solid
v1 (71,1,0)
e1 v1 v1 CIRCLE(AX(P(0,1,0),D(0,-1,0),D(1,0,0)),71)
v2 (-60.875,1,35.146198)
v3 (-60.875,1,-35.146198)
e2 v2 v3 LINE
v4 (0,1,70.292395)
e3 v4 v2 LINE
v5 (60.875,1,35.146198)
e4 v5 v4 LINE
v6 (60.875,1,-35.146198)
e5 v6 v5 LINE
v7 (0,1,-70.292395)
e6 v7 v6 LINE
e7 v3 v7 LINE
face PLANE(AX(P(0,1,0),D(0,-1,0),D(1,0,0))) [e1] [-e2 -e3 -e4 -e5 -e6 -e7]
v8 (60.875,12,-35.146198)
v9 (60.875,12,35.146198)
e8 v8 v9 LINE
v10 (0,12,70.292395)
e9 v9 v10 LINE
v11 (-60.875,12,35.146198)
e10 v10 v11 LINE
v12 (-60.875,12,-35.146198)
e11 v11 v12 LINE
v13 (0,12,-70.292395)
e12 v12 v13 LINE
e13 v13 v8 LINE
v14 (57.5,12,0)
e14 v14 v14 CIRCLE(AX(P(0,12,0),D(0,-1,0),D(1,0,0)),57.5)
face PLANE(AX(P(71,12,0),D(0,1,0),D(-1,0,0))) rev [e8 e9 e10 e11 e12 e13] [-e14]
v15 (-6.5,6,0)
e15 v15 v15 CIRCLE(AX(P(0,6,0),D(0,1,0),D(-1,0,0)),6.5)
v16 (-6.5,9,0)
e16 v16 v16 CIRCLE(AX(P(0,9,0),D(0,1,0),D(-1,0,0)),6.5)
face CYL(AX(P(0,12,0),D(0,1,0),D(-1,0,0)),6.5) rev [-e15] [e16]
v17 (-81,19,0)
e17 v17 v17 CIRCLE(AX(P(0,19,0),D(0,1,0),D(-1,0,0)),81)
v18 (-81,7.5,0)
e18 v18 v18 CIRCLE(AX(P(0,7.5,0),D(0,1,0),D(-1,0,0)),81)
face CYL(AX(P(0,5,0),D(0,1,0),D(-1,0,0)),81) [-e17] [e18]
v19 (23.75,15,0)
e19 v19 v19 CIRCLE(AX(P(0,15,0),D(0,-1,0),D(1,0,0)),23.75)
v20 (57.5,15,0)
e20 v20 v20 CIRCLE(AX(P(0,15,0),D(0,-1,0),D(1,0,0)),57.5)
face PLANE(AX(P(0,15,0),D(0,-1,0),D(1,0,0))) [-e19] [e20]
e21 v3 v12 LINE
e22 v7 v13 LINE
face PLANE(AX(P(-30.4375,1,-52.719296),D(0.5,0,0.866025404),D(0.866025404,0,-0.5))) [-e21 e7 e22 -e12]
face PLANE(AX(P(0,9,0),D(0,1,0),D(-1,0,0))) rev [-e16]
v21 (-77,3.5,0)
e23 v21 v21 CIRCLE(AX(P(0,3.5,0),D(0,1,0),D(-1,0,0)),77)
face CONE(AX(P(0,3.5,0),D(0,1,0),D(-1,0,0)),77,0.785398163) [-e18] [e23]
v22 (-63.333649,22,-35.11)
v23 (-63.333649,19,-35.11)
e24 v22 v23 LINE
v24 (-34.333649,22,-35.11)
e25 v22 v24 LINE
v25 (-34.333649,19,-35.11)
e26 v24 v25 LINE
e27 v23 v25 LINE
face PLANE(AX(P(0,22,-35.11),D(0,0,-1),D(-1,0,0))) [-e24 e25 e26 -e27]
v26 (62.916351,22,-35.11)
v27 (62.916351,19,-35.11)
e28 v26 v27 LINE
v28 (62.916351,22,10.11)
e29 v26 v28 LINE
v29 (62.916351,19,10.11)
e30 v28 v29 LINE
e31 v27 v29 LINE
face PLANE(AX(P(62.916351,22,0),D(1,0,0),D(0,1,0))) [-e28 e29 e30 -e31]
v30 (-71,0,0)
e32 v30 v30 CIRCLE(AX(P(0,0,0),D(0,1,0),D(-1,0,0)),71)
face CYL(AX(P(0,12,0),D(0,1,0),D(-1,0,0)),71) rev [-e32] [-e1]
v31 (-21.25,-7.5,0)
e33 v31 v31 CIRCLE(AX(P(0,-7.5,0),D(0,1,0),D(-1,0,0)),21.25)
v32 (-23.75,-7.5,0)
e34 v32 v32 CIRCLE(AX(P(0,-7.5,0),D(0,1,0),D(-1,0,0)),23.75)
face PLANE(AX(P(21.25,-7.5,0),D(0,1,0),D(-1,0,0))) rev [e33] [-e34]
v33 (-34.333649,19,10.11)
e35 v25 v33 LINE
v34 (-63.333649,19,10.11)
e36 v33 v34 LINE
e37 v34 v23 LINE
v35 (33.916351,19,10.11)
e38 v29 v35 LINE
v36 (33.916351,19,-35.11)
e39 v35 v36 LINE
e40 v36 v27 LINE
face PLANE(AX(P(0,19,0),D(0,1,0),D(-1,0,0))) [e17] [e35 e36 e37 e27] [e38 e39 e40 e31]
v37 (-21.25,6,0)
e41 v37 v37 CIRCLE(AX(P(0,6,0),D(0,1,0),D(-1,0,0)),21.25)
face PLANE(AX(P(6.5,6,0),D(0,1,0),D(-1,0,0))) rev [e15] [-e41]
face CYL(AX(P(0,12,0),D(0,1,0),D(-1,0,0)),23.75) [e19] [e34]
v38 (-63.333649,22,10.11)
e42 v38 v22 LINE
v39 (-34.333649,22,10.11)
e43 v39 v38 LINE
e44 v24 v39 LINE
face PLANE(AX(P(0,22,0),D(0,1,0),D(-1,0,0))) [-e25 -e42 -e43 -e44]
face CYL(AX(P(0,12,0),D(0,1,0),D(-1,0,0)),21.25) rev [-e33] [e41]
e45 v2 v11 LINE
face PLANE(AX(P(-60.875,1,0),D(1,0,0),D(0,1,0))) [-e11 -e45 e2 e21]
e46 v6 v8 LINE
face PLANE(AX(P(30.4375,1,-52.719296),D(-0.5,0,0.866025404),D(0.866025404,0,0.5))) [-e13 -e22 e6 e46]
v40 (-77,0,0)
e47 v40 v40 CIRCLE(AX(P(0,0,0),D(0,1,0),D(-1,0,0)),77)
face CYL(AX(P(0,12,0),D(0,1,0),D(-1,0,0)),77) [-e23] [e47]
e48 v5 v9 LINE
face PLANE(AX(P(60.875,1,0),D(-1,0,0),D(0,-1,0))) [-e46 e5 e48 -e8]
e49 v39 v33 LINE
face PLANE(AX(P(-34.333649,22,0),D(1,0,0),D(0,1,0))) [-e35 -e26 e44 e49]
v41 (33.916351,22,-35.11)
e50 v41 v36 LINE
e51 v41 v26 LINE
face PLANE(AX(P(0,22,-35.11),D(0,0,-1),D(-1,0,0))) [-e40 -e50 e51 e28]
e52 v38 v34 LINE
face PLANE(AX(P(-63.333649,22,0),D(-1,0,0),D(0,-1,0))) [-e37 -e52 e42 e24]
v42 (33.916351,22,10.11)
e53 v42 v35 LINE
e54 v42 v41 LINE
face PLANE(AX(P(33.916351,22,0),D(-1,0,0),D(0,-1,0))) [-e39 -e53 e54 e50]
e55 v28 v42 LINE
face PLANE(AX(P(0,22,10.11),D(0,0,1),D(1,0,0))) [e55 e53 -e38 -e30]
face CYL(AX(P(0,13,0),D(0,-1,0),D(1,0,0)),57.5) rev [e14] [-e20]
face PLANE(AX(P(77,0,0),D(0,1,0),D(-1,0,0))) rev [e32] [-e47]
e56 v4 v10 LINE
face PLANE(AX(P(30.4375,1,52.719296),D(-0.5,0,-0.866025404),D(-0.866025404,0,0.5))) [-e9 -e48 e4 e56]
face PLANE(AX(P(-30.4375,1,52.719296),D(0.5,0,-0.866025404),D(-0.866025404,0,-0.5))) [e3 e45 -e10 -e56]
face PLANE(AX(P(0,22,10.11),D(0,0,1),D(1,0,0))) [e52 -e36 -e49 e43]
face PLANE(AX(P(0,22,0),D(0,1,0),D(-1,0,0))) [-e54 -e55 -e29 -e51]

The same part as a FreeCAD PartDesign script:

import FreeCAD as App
import Part
import Sketcher
Q = App.Units.Quantity

doc = App.newDocument("Part")
body = doc.addObject("PartDesign::Body", "Body")

# Sketch on XY plane
sketch1 = body.newObject("Sketcher::SketchObject", "Sketch")
sketch1.AttachmentSupport = (doc.getObject("XY_Plane"), [""])
sketch1.MapMode = "FlatFace"
sketch1.addGeometry([
    Part.LineSegment(App.Vector(0, 15, 0), App.Vector(0, 9, 0)),  # 0
    Part.LineSegment(App.Vector(0, 9, 0), App.Vector(6.5, 9, 0)),  # 1
    Part.LineSegment(App.Vector(6.5, 9, 0), App.Vector(6.5, 6, 0)),  # 2
    Part.LineSegment(App.Vector(6.5, 6, 0), App.Vector(21.2, 6, 0)),  # 3
    Part.LineSegment(App.Vector(21.2, 6, 0), App.Vector(21.2, -7.5, 0)),  # 4
    Part.LineSegment(App.Vector(21.2, -7.5, 0), App.Vector(23.8, -7.5, 0)),  # 5
    Part.LineSegment(App.Vector(23.8, -7.5, 0), App.Vector(23.8, 12, 0)),  # 6
    Part.LineSegment(App.Vector(23.8, 12, 0), App.Vector(71, 12, 0)),  # 7
    Part.LineSegment(App.Vector(71, 12, 0), App.Vector(71, 0, 0)),  # 8
    Part.LineSegment(App.Vector(71, 0, 0), App.Vector(77, 0, 0)),  # 9
    Part.LineSegment(App.Vector(77, 0, 0), App.Vector(77, 3.5, 0)),  # 10
    Part.LineSegment(App.Vector(77, 3.5, 0), App.Vector(84, 10.5, 0)),  # 11
    Part.LineSegment(App.Vector(84, 10.5, 0), App.Vector(85, 10.5, 0)),  # 12
    Part.LineSegment(App.Vector(85, 10.5, 0), App.Vector(85, 15, 0)),  # 13
    Part.LineSegment(App.Vector(85, 15, 0), App.Vector(0, 15, 0)),  # 14
], False)
sketch1.addConstraint([
    Sketcher.Constraint("Coincident", 0, 2, 1, 1),
    Sketcher.Constraint("Coincident", 1, 2, 2, 1),
    Sketcher.Constraint("Coincident", 2, 2, 3, 1),
    Sketcher.Constraint("Coincident", 3, 2, 4, 1),
    Sketcher.Constraint("Coincident", 4, 2, 5, 1),
    Sketcher.Constraint("Coincident", 5, 2, 6, 1),
    Sketcher.Constraint("Coincident", 6, 2, 7, 1),
    Sketcher.Constraint("Coincident", 7, 2, 8, 1),
    Sketcher.Constraint("Coincident", 8, 2, 9, 1),
    Sketcher.Constraint("Coincident", 9, 2, 10, 1),
    Sketcher.Constraint("Coincident", 10, 2, 11, 1),
    Sketcher.Constraint("Coincident", 11, 2, 12, 1),
    Sketcher.Constraint("Coincident", 12, 2, 13, 1),
    Sketcher.Constraint("Coincident", 13, 2, 14, 1),
    Sketcher.Constraint("Coincident", 14, 2, 0, 1),
    Sketcher.Constraint("Vertical", 0),
    Sketcher.Constraint("Horizontal", 1),
    Sketcher.Constraint("Vertical", 2),
    Sketcher.Constraint("Horizontal", 3),
    Sketcher.Constraint("Vertical", 4),
    Sketcher.Constraint("Horizontal", 5),
    Sketcher.Constraint("Vertical", 6),
    Sketcher.Constraint("Horizontal", 7),
    Sketcher.Constraint("Vertical", 8),
    Sketcher.Constraint("Horizontal", 9),
    Sketcher.Constraint("Vertical", 10),
    Sketcher.Constraint("Horizontal", 12),
    Sketcher.Constraint("Vertical", 13),
    Sketcher.Constraint("Horizontal", 14),
    Sketcher.Constraint("PointOnObject", 0, 2, -2),
    Sketcher.Constraint("PointOnObject", 8, 2, -1),
    Sketcher.Constraint("Equal", 9, 0),
    Sketcher.Constraint("DistanceX", 9, 1, 9, 2, 6.0),
    Sketcher.Constraint("DistanceX", 12, 1, 12, 2, 1.0),
    Sketcher.Constraint("DistanceX", 14, 2, 14, 1, 85.0),
    Sketcher.Constraint("DistanceY", 2, 2, 2, 1, 3.0),
    Sketcher.Constraint("DistanceY", 8, 2, 8, 1, 12.0),
    Sketcher.Constraint("Angle", 11, Q("45 deg")),
    Sketcher.Constraint("DistanceX", 1, 1, 1, 2, 6.5),
    Sketcher.Constraint("DistanceX", 5, 1, 5, 2, 2.5),
    Sketcher.Constraint("DistanceY", 4, 2, 4, 1, 13.5),
    Sketcher.Constraint("DistanceY", 6, 1, 6, 2, 19.5),
    Sketcher.Constraint("DistanceY", 10, 1, 10, 2, 3.5),
    Sketcher.Constraint("DistanceY", 13, 1, 13, 2, 4.5),
    Sketcher.Constraint("DistanceX", 3, 1, 3, 2, 14.75),
])
revolution = body.newObject("PartDesign::Revolution", "Revolution")
revolution.Profile = sketch1
revolution.ReferenceAxis = (sketch1, ["V_Axis"])
revolution.Angle = 360

# Sketch on XZ plane
sketch2 = body.newObject("Sketcher::SketchObject", "Sketch001")
sketch2.AttachmentSupport = (doc.getObject("XZ_Plane"), [""])
sketch2.MapMode = "FlatFace"
sketch2.AttachmentOffset = App.Placement(App.Vector(0, 0, -12), App.Rotation())
sketch2.addGeometry([
    Part.Circle(App.Vector(0, 0, 0), App.Vector(0, 0, 1), 71),  # 0
    Part.LineSegment(App.Vector(-61, 35, 0), App.Vector(0, 70, 0)),  # 1
    Part.LineSegment(App.Vector(0, 70, 0), App.Vector(61, 35, 0)),  # 2
    Part.LineSegment(App.Vector(61, 35, 0), App.Vector(61, -35, 0)),  # 3
    Part.LineSegment(App.Vector(61, -35, 0), App.Vector(0, -70, 0)),  # 4
    Part.LineSegment(App.Vector(0, -70, 0), App.Vector(-61, -35, 0)),  # 5
    Part.LineSegment(App.Vector(-61, -35, 0), App.Vector(-61, 35, 0)),  # 6
], False)
sketch2.addConstraint([
    Sketcher.Constraint("Coincident", 1, 2, 2, 1),
    Sketcher.Constraint("Coincident", 2, 2, 3, 1),
    Sketcher.Constraint("Coincident", 3, 2, 4, 1),
    Sketcher.Constraint("Coincident", 4, 2, 5, 1),
    Sketcher.Constraint("Coincident", 5, 2, 6, 1),
    Sketcher.Constraint("Coincident", 6, 2, 1, 1),
    Sketcher.Constraint("Vertical", 3),
    Sketcher.Constraint("Vertical", 6),
    Sketcher.Constraint("Coincident", 0, 3, -1, 1),
    Sketcher.Constraint("Symmetric", 1, 2, 4, 2, -1, 1),
    Sketcher.Constraint("Symmetric", 2, 2, 5, 2, -1, 1),
    Sketcher.Constraint("PointOnObject", 1, 2, -2),
    Sketcher.Constraint("Parallel", 1, 4),
    Sketcher.Constraint("Horizontal", 3, 2, 5, 2),
    Sketcher.Constraint("Diameter", 0, 142.0),
    Sketcher.Constraint("Angle", 1, Q("30 deg")),
    Sketcher.Constraint("DistanceX", 5, 2, 3, 2, 121.75),
    Sketcher.Constraint("DistanceY", 3, 2, 3, 1, 70.292395),
])
pad1 = body.newObject("PartDesign::Pad", "Pad")
pad1.Profile = sketch2
pad1.Length = 11

# Sketch on XZ plane
sketch3 = body.newObject("Sketcher::SketchObject", "Sketch002")
sketch3.AttachmentSupport = (doc.getObject("XZ_Plane"), [""])
sketch3.MapMode = "FlatFace"
sketch3.AttachmentOffset = App.Placement(App.Vector(0, 0, -12), App.Rotation())
sketch3.addGeometry([
    Part.Circle(App.Vector(0, 0, 0), App.Vector(0, 0, 1), 58),
    Part.Circle(App.Vector(0, 0, 0), App.Vector(0, 0, 1), 24),
], False)
sketch3.addConstraint([
    Sketcher.Constraint("Coincident", 0, 3, -1, 1),
    Sketcher.Constraint("Coincident", 1, 3, -1, 1),
    Sketcher.Constraint("Diameter", 0, 115.0),
    Sketcher.Constraint("Diameter", 1, 47.5),
])
pocket1 = body.newObject("PartDesign::Pocket", "Pocket")
pocket1.Profile = sketch3
pocket1.Length = 1

# Sketch on XZ plane
sketch4 = body.newObject("Sketcher::SketchObject", "Sketch003")
sketch4.AttachmentSupport = (doc.getObject("XZ_Plane"), [""])
sketch4.MapMode = "FlatFace"
sketch4.AttachmentOffset = App.Placement(App.Vector(0, 0, -5), App.Rotation())
sketch4.addGeometry([
    Part.Circle(App.Vector(0, 0, 0), App.Vector(0, 0, 1), 85),
    Part.Circle(App.Vector(0, 0, 0), App.Vector(0, 0, 1), 81),
], False)
sketch4.addConstraint([
    Sketcher.Constraint("Coincident", 0, 3, -1, 1),
    Sketcher.Constraint("Coincident", 1, 3, -1, 1),
    Sketcher.Constraint("Diameter", 0, 170.0),
    Sketcher.Constraint("Diameter", 1, 162.0),
])
pocket2 = body.newObject("PartDesign::Pocket", "Pocket001")
pocket2.Profile = sketch4
pocket2.Length = 10

# Sketch on XZ plane
sketch5 = body.newObject("Sketcher::SketchObject", "Sketch004")
sketch5.AttachmentSupport = (doc.getObject("XZ_Plane"), [""])
sketch5.MapMode = "FlatFace"
sketch5.AttachmentOffset = App.Placement(App.Vector(0, 0, -13), App.Rotation())
sketch5.addGeometry([
    Part.Circle(App.Vector(0, 0, 0), App.Vector(0, 0, 1), 58),
    Part.Circle(App.Vector(0, 0, 0), App.Vector(0, 0, 1), 24),
], False)
sketch5.addConstraint([
    Sketcher.Constraint("Coincident", 0, 3, -1, 1),
    Sketcher.Constraint("Coincident", 1, 3, -1, 1),
    Sketcher.Constraint("Diameter", 0, 115.0),
    Sketcher.Constraint("Diameter", 1, 47.5),
])
pad2 = body.newObject("PartDesign::Pad", "Pad001")
pad2.Profile = sketch5
pad2.Length = 1
pad2.Reversed = True

# Sketch on XZ plane
sketch6 = body.newObject("Sketcher::SketchObject", "Sketch005")
sketch6.AttachmentSupport = (doc.getObject("XZ_Plane"), [""])
sketch6.MapMode = "FlatFace"
sketch6.AttachmentOffset = App.Placement(App.Vector(0, 0, -15), App.Rotation())
sketch6.addGeometry(Part.Circle(App.Vector(0, 0, 0), App.Vector(0, 0, 1), 81), False)
sketch6.addConstraint([
    Sketcher.Constraint("Coincident", 0, 3, -1, 1),
    Sketcher.Constraint("Diameter", 0, 162.0),
])
pad3 = body.newObject("PartDesign::Pad", "Pad002")
pad3.Profile = sketch6
pad3.Length = 4
pad3.Reversed = True

# Sketch on XZ plane
sketch7 = body.newObject("Sketcher::SketchObject", "Sketch006")
sketch7.AttachmentSupport = (doc.getObject("XZ_Plane"), [""])
sketch7.MapMode = "FlatFace"
sketch7.AttachmentOffset = App.Placement(App.Vector(0, 0, -13), App.Rotation())
sketch7.addGeometry([
    Part.Circle(App.Vector(0, 0, 0), App.Vector(0, 0, 1), 58),
    Part.Circle(App.Vector(0, 0, 0), App.Vector(0, 0, 1), 24),
], False)
sketch7.addConstraint([
    Sketcher.Constraint("Coincident", 0, 3, -1, 1),
    Sketcher.Constraint("Coincident", 1, 3, -1, 1),
    Sketcher.Constraint("Diameter", 0, 115.0),
    Sketcher.Constraint("Diameter", 1, 47.5),
])
pocket3 = body.newObject("PartDesign::Pocket", "Pocket002")
pocket3.Profile = sketch7
pocket3.Length = 2

# Sketch on XZ plane
sketch8 = body.newObject("Sketcher::SketchObject", "Sketch007")
sketch8.AttachmentSupport = (doc.getObject("XZ_Plane"), [""])
sketch8.MapMode = "FlatFace"
sketch8.AttachmentOffset = App.Placement(App.Vector(0, 0, -19), App.Rotation())
sketch8.addGeometry([
    Part.LineSegment(App.Vector(-63, 10, 0), App.Vector(-34, 10, 0)),  # 0
    Part.LineSegment(App.Vector(-34, 10, 0), App.Vector(-34, -35, 0)),  # 1
    Part.LineSegment(App.Vector(-34, -35, 0), App.Vector(-63, -35, 0)),  # 2
    Part.LineSegment(App.Vector(-63, -35, 0), App.Vector(-63, 10, 0)),  # 3
    Part.LineSegment(App.Vector(34, 10, 0), App.Vector(63, 10, 0)),  # 4
    Part.LineSegment(App.Vector(63, 10, 0), App.Vector(63, -35, 0)),  # 5
    Part.LineSegment(App.Vector(63, -35, 0), App.Vector(34, -35, 0)),  # 6
    Part.LineSegment(App.Vector(34, -35, 0), App.Vector(34, 10, 0)),  # 7
], False)
sketch8.addConstraint([
    Sketcher.Constraint("Coincident", 0, 2, 1, 1),
    Sketcher.Constraint("Coincident", 1, 2, 2, 1),
    Sketcher.Constraint("Coincident", 2, 2, 3, 1),
    Sketcher.Constraint("Coincident", 3, 2, 0, 1),
    Sketcher.Constraint("Coincident", 4, 2, 5, 1),
    Sketcher.Constraint("Coincident", 5, 2, 6, 1),
    Sketcher.Constraint("Coincident", 6, 2, 7, 1),
    Sketcher.Constraint("Coincident", 7, 2, 4, 1),
    Sketcher.Constraint("Horizontal", 0),
    Sketcher.Constraint("Vertical", 1),
    Sketcher.Constraint("Horizontal", 2),
    Sketcher.Constraint("Vertical", 3),
    Sketcher.Constraint("Horizontal", 4),
    Sketcher.Constraint("Vertical", 5),
    Sketcher.Constraint("Horizontal", 6),
    Sketcher.Constraint("Vertical", 7),
    Sketcher.Constraint("Horizontal", 3, 2, 4, 2),
    Sketcher.Constraint("Horizontal", 2, 2, 5, 2),
    Sketcher.Constraint("Equal", 2, 4),
    Sketcher.Constraint("DistanceX", 0, 1, 0, 2, 29.0),
    Sketcher.Constraint("DistanceY", 1, 2, 1, 1, 45.22),
    Sketcher.Constraint("DistanceY", -1, 1, 0, 2, 10.11),
    Sketcher.Constraint("DistanceX", 0, 2, 4, 2, 97.25),
    Sketcher.Constraint("DistanceX", 0, 2, -1, 1, 34.333649),
])
pad4 = body.newObject("PartDesign::Pad", "Pad003")
pad4.Profile = sketch8
pad4.Length = 3
pad4.Reversed = True

doc.recompute()
